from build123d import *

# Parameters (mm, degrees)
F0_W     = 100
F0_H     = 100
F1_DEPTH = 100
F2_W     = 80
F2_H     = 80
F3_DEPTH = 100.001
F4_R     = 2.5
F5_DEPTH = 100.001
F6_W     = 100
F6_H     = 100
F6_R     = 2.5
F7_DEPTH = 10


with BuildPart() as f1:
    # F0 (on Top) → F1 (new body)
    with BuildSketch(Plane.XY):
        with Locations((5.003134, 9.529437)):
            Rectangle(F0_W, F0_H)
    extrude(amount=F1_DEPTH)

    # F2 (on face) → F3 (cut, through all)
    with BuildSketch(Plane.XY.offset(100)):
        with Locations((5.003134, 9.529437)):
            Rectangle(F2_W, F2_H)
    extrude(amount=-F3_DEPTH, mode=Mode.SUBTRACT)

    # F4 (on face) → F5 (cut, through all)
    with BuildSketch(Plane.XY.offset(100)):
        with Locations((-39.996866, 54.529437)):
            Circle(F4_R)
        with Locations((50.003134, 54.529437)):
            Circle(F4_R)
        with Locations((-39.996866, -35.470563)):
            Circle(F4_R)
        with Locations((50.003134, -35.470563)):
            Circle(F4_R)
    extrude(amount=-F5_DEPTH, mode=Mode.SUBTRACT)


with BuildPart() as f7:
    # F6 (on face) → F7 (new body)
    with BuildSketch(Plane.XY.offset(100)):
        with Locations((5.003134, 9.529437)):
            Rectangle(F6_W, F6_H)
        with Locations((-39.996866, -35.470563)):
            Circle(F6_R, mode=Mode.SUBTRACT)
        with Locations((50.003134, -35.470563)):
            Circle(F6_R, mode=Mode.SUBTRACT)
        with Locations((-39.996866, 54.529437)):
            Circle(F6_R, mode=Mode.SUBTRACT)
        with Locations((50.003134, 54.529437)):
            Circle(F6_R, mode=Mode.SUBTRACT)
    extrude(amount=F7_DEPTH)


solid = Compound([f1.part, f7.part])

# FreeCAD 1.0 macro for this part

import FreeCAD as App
import Part
import Sketcher
from FreeCAD import Vector


def add_polygon(sketch, points):
    """Adds a closed chain of lines whose ends are joined by coincident constraints."""
    first, n = sketch.GeometryCount, len(points)
    for a, b in zip(points, points[1:] + points[:1]):
        sketch.addGeometry(Part.LineSegment(App.Vector(*a, 0), App.Vector(*b, 0)), False)
    for i in range(n):
        sketch.addConstraint(Sketcher.Constraint("Coincident", first + i, 2, first + (i + 1) % n, 1))

doc = App.newDocument("Part")
params = doc.addObject("Spreadsheet::Sheet", "Params")
for row, (alias, value) in enumerate([
    ("sketch1_width", "100 mm"),
    ("pad1_length", "100 mm"),
    ("sketch2_width", "80 mm"),
    ("sketch3_diameter", "5 mm"),
    ("sketch4_diameter", "5 mm"),
    ("sketch4_width", "100 mm"),
    ("pad2_length", "10 mm"),
], start=1):
    params.set(f"A{row}", alias)
    params.set(f"B{row}", "=" + value)
    params.setAlias(f"B{row}", alias)

body = doc.addObject("PartDesign::Body", "Body")

sketch1 = doc.addObject("Sketcher::SketchObject", "Sketch")
body.addObject(sketch1)
sketch1.AttachmentSupport = (doc.XY_Plane, [""])
sketch1.MapMode = "FlatFace"
add_polygon(sketch1, [(-44.996866, 59.529437), (-44.996866, -40.470563), (55.003134, -40.470563), (55.003134, 59.529437)])
sketch1.addConstraint([
    Sketcher.Constraint("Vertical", 0),
    Sketcher.Constraint("Horizontal", 1),
    Sketcher.Constraint("Vertical", 2),
    Sketcher.Constraint("Horizontal", 3),
    Sketcher.Constraint("Equal", 3, 0),
    Sketcher.Constraint("DistanceX", 1, 1, 1, 2, 100.0),
    Sketcher.Constraint("DistanceX", 0, 2, -1, 1, 44.996866),
    Sketcher.Constraint("DistanceY", 0, 2, -1, 1, 40.470563),
])
sketch1.setExpression("Constraints[9]", "Params.sketch1_width")
pad1 = doc.addObject("PartDesign::Pad", "Pad")
body.addObject(pad1)
pad1.Profile = sketch1
pad1.setExpression("Length", "Params.pad1_length")

sketch2 = doc.addObject("Sketcher::SketchObject", "Sketch001")
body.addObject(sketch2)
sketch2.AttachmentSupport = (doc.XY_Plane, [""])
sketch2.MapMode = "FlatFace"
sketch2.AttachmentOffset = App.Placement(Vector(0, 0, 100), App.Rotation())
add_polygon(sketch2, [(-34.996866, 49.529437), (-34.996866, -30.470563), (45.003134, -30.470563), (45.003134, 49.529437)])
sketch2.addConstraint([
    Sketcher.Constraint("Vertical", 0),
    Sketcher.Constraint("Horizontal", 1),
    Sketcher.Constraint("Vertical", 2),
    Sketcher.Constraint("Horizontal", 3),
    Sketcher.Constraint("Equal", 3, 0),
    Sketcher.Constraint("DistanceX", 1, 1, 1, 2, 80.0),
    Sketcher.Constraint("DistanceX", 0, 2, -1, 1, 34.996866),
    Sketcher.Constraint("DistanceY", 0, 2, -1, 1, 30.470563),
])
sketch2.setExpression("Constraints[9]", "Params.sketch2_width")
pocket1 = doc.addObject("PartDesign::Pocket", "Pocket")
body.addObject(pocket1)
pocket1.Profile = sketch2
pocket1.Type = "ThroughAll"

sketch3 = doc.addObject("Sketcher::SketchObject", "Sketch002")
body.addObject(sketch3)
sketch3.AttachmentSupport = (doc.XY_Plane, [""])
sketch3.MapMode = "FlatFace"
sketch3.AttachmentOffset = App.Placement(Vector(0, 0, 100), App.Rotation())
sketch3.addGeometry([
    Part.Circle(Vector(-39.996866, 54.529437, 0), Vector(0, 0, 1), 2.5),
    Part.Circle(Vector(50.003134, 54.529437, 0), Vector(0, 0, 1), 2.5),
    Part.Circle(Vector(-39.996866, -35.470563, 0), Vector(0, 0, 1), 2.5),
    Part.Circle(Vector(50.003134, -35.470563, 0), Vector(0, 0, 1), 2.5),
], False)
sketch3.addConstraint([
    Sketcher.Constraint("Equal", 0, 1),
    Sketcher.Constraint("Equal", 1, 2),
    Sketcher.Constraint("Equal", 2, 3),
    Sketcher.Constraint("Horizontal", 0, 3, 1, 3),
    Sketcher.Constraint("Horizontal", 2, 3, 3, 3),
    Sketcher.Constraint("Vertical", 0, 3, 2, 3),
    Sketcher.Constraint("Vertical", 1, 3, 3, 3),
    Sketcher.Constraint("Diameter", 0, 5.0),
    Sketcher.Constraint("DistanceX", 0, 3, 1, 3, 90.0),
    Sketcher.Constraint("DistanceY", 2, 3, 0, 3, 90.0),
    Sketcher.Constraint("DistanceX", 0, 3, -1, 1, 39.996866),
    Sketcher.Constraint("DistanceY", -1, 1, 0, 3, 54.529437),
])
sketch3.setExpression("Constraints[7]", "Params.sketch3_diameter")
pocket2 = doc.addObject("PartDesign::Pocket", "Pocket001")
body.addObject(pocket2)
pocket2.Profile = sketch3
pocket2.Type = "ThroughAll"
body2 = doc.addObject("PartDesign::Body", "Body001")

sketch4 = doc.addObject("Sketcher::SketchObject", "Sketch003")
body2.addObject(sketch4)
sketch4.AttachmentSupport = (doc.getObject("XY_Plane001"), [""])
sketch4.MapMode = "FlatFace"
sketch4.AttachmentOffset = App.Placement(Vector(0, 0, 100), App.Rotation())
add_polygon(sketch4, [(-44.996866, 59.529437), (-44.996866, -40.470563), (55.003134, -40.470563), (55.003134, 59.529437)])
sketch4.addGeometry(Part.Circle(Vector(-39.996866, -35.470563, 0), Vector(0, 0, 1), 2.5), False)
sketch4.addGeometry(Part.Circle(Vector(50.003134, -35.470563, 0), Vector(0, 0, 1), 2.5), False)
sketch4.addGeometry(Part.Circle(Vector(-39.996866, 54.529437, 0), Vector(0, 0, 1), 2.5), False)
sketch4.addGeometry(Part.Circle(Vector(50.003134, 54.529437, 0), Vector(0, 0, 1), 2.5), False)
sketch4.addConstraint([
    Sketcher.Constraint("Vertical", 0),
    Sketcher.Constraint("Horizontal", 1),
    Sketcher.Constraint("Vertical", 2),
    Sketcher.Constraint("Horizontal", 3),
    Sketcher.Constraint("Equal", 4, 5),
    Sketcher.Constraint("Equal", 5, 6),
    Sketcher.Constraint("Equal", 6, 7),
    Sketcher.Constraint("Horizontal", 4, 3, 5, 3),
    Sketcher.Constraint("Horizontal", 6, 3, 7, 3),
    Sketcher.Constraint("Vertical", 4, 3, 6, 3),
    Sketcher.Constraint("Vertical", 5, 3, 7, 3),
    Sketcher.Constraint("Equal", 3, 0),
    Sketcher.Constraint("Diameter", 4, 5.0),
    Sketcher.Constraint("DistanceX", 1, 1, 1, 2, 100.0),
    Sketcher.Constraint("DistanceX", 4, 3, 5, 3, 90.0),
    Sketcher.Constraint("DistanceY", 4, 3, 6, 3, 90.0),
    Sketcher.Constraint("DistanceX", 0, 2, 4, 3, 5.0),
    Sketcher.Constraint("DistanceY", 0, 2, 4, 3, 5.0),
    Sketcher.Constraint("DistanceX", 4, 3, -1, 1, 39.996866),
    Sketcher.Constraint("DistanceY", 4, 3, -1, 1, 35.470563),
])
sketch4.setExpression("Constraints[16]", "Params.sketch4_diameter")
sketch4.setExpression("Constraints[17]", "Params.sketch4_width")
pad2 = doc.addObject("PartDesign::Pad", "Pad001")
body2.addObject(pad2)
pad2.Profile = sketch4
pad2.setExpression("Length", "Params.pad2_length")

doc.recompute()
